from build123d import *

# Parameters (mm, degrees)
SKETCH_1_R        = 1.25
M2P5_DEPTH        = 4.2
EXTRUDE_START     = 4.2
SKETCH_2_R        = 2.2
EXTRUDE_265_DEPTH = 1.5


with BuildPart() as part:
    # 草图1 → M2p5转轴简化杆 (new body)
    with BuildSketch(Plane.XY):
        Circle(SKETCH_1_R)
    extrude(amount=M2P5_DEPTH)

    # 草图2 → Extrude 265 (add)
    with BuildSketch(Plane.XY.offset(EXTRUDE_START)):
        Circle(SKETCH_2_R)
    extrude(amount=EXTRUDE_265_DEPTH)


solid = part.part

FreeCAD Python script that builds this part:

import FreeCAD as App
import Part
import Sketcher
from FreeCAD import Vector

doc = App.newDocument("Part")
params = doc.addObject("Spreadsheet::Sheet", "Params")
for row, (alias, value) in enumerate([
    ("sketch1_diameter", "2.5 mm"),
    ("pad1_length", "4.2 mm"),
    ("sketch2_diameter", "4.4 mm"),
    ("pad2_length", "1.5 mm"),
], start=1):
    params.set(f"A{row}", alias)
    params.set(f"B{row}", "=" + value)
    params.setAlias(f"B{row}", alias)

body = doc.addObject("PartDesign::Body", "Body")

sketch1 = doc.addObject("Sketcher::SketchObject", "Sketch")
body.addObject(sketch1)
sketch1.AttachmentSupport = (doc.XY_Plane, [""])
sketch1.MapMode = "FlatFace"
sketch1.addGeometry(Part.Circle(Vector(0, 0, 0), Vector(0, 0, 1), 1.25), False)
sketch1.addConstraint([
    Sketcher.Constraint("Coincident", 0, 3, -1, 1),
    Sketcher.Constraint("Diameter", 0, 2.5),
])
sketch1.setExpression("Constraints[1]", "Params.sketch1_diameter")
pad1 = doc.addObject("PartDesign::Pad", "Pad")
body.addObject(pad1)
pad1.Profile = sketch1
pad1.setExpression("Length", "Params.pad1_length")

sketch2 = doc.addObject("Sketcher::SketchObject", "Sketch001")
body.addObject(sketch2)
sketch2.AttachmentSupport = (doc.XY_Plane, [""])
sketch2.MapMode = "FlatFace"
sketch2.AttachmentOffset = App.Placement(Vector(0, 0, 4.2), App.Rotation())
sketch2.addGeometry(Part.Circle(Vector(0, 0, 0), Vector(0, 0, 1), 2.2), False)
sketch2.addConstraint([
    Sketcher.Constraint("Coincident", 0, 3, -1, 1),
    Sketcher.Constraint("Diameter", 0, 4.4),
])
sketch2.setExpression("Constraints[1]", "Params.sketch2_diameter")
pad2 = doc.addObject("PartDesign::Pad", "Pad001")
body.addObject(pad2)
pad2.Profile = sketch2
pad2.setExpression("Length", "Params.pad2_length")

doc.recompute()
